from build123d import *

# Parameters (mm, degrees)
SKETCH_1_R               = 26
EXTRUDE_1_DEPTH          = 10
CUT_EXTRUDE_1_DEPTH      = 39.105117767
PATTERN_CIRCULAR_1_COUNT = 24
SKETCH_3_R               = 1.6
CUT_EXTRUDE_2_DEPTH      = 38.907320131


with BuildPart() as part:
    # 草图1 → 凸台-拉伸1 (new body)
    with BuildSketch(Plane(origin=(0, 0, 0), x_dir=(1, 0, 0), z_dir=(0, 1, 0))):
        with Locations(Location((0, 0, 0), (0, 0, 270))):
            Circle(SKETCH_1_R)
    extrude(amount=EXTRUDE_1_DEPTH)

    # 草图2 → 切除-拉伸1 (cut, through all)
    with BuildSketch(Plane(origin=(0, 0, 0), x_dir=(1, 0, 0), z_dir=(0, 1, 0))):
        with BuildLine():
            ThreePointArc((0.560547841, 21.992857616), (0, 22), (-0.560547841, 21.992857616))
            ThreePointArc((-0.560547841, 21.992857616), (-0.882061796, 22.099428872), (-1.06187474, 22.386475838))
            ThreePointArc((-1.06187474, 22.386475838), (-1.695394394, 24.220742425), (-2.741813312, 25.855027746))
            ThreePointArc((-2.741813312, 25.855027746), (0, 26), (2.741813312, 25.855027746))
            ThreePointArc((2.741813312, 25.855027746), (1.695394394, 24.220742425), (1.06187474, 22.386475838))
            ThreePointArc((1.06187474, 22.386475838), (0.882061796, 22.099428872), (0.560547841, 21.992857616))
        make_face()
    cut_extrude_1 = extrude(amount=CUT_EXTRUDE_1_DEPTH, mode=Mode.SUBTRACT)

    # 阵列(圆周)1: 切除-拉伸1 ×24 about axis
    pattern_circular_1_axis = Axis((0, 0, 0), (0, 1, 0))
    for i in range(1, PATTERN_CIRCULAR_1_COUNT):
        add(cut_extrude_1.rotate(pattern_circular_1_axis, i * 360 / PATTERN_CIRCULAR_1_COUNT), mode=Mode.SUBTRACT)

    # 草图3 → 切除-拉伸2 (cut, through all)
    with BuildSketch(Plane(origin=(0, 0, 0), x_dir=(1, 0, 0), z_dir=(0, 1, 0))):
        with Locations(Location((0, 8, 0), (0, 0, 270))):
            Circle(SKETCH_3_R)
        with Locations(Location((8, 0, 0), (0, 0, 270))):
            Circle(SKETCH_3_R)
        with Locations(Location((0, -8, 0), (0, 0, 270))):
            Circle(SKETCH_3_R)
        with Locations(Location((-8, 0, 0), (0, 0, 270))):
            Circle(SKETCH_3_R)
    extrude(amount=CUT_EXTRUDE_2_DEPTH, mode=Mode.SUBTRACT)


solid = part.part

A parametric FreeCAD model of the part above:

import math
import FreeCAD as App
import Part
import Sketcher
from FreeCAD import Vector
Q = App.Units.Quantity

doc = App.newDocument("Part")
body = doc.addObject("PartDesign::Body", "Body")

# Sketch on XZ plane
sketch1 = doc.addObject("Sketcher::SketchObject", "Sketch")
body.addObject(sketch1)
sketch1.AttachmentSupport = (doc.XZ_Plane, [""])
sketch1.MapMode = "FlatFace"
sketch1.addGeometry(Part.Circle(Vector(0, 0, 0), Vector(0, 0, 1), 26), False)
sketch1.addConstraint([
    Sketcher.Constraint("Coincident", 0, 3, -1, 1),
    Sketcher.Constraint("Diameter", 0, Q("52 mm")),
])
pad1 = doc.addObject("PartDesign::Pad", "Pad")
body.addObject(pad1)
pad1.Profile = sketch1
pad1.Length = 10
pad1.Reversed = True

# Sketch on XZ plane
sketch2 = doc.addObject("Sketcher::SketchObject", "Sketch001")
body.addObject(sketch2)
sketch2.AttachmentSupport = (doc.XZ_Plane, [""])
sketch2.MapMode = "FlatFace"
sketch2.addGeometry([
    Part.ArcOfCircle(Part.Circle(Vector(0, 0, 0), Vector(0, 0, 1), 22), math.radians(-91.460023), math.radians(-88.539977)),  # 0
    Part.ArcOfCircle(Part.Circle(Vector(0.573288, -22.492695, 0), Vector(0, 0, 1), 0.5), math.radians(12.265316), math.radians(91.460023)),  # 1
    Part.ArcOfCircle(Part.Circle(Vector(9.082994, -20.642675, 0), Vector(0, 0, 1), 8.208483), math.radians(-167.734683), math.radians(-140.580321)),  # 2
    Part.ArcOfCircle(Part.Circle(Vector(0, 0, 0), Vector(0, 0, 1), 26), math.radians(-96.053345), math.radians(-83.946655)),  # 3
    Part.ArcOfCircle(Part.Circle(Vector(-9.082994, -20.642675, 0), Vector(0, 0, 1), 8.208483), math.radians(-39.419679), math.radians(-12.265317)),  # 4
    Part.ArcOfCircle(Part.Circle(Vector(-0.573288, -22.492695, 0), Vector(0, 0, 1), 0.5), math.radians(88.539977), math.radians(167.734684)),  # 5
], False)
sketch2.addConstraint([
    Sketcher.Constraint("Tangent", 0, 2, 1, 2),
    Sketcher.Constraint("Tangent", 1, 1, 2, 1),
    Sketcher.Constraint("Coincident", 2, 2, 3, 2),
    Sketcher.Constraint("Coincident", 3, 1, 4, 1),
    Sketcher.Constraint("Tangent", 4, 2, 5, 2),
    Sketcher.Constraint("Tangent", 5, 1, 0, 1),
    Sketcher.Constraint("Coincident", 0, 3, -1, 1),
    Sketcher.Constraint("Coincident", 3, 3, -1, 1),
    Sketcher.Constraint("Equal", 2, 4),
    Sketcher.Constraint("Equal", 1, 5),
    Sketcher.Constraint("Symmetric", 2, 3, 4, 3, -2),
    Sketcher.Constraint("Radius", 0, Q("22 mm")),
    Sketcher.Constraint("Radius", 3, Q("26 mm")),
    Sketcher.Constraint("Radius", 1, Q("0.5 mm")),
    Sketcher.Constraint("Radius", 2, Q("8.208483 mm")),
    Sketcher.Constraint("DistanceY", 1, 1, 2, 3, Q("1.743801 mm")),
    Sketcher.Constraint("DistanceX", 5, 3, 2, 2, Q("3.315101 mm")),
])
pocket1 = doc.addObject("PartDesign::Pocket", "Pocket")
body.addObject(pocket1)
pocket1.Profile = sketch2
pocket1.Type = "ThroughAll"
doc.recompute()

polarpattern = doc.addObject("PartDesign::PolarPattern", "PolarPattern")
body.addObject(polarpattern)
polarpattern.Originals = [pocket1]
polarpattern.Axis = (doc.Y_Axis, [""])
polarpattern.Angle = 360
polarpattern.Occurrences = 24
body.Tip = polarpattern

# Sketch on XZ plane
sketch3 = doc.addObject("Sketcher::SketchObject", "Sketch002")
body.addObject(sketch3)
sketch3.AttachmentSupport = (doc.XZ_Plane, [""])
sketch3.MapMode = "FlatFace"
sketch3.addGeometry([
    Part.Circle(Vector(0, -8, 0), Vector(0, 0, 1), 1.6),
    Part.Circle(Vector(8, 0, 0), Vector(0, 0, 1), 1.6),
    Part.Circle(Vector(0, 8, 0), Vector(0, 0, 1), 1.6),
    Part.Circle(Vector(-8, 0, 0), Vector(0, 0, 1), 1.6),
], False)
sketch3.addConstraint([
    Sketcher.Constraint("Equal", 0, 1),
    Sketcher.Constraint("Equal", 1, 2),
    Sketcher.Constraint("Equal", 2, 3),
    Sketcher.Constraint("Symmetric", 0, 3, 2, 3, -1, 1),
    Sketcher.Constraint("Symmetric", 1, 3, 3, 3, -1, 1),
    Sketcher.Constraint("PointOnObject", 0, 3, -2),
    Sketcher.Constraint("PointOnObject", 1, 3, -1),
    Sketcher.Constraint("Diameter", 0, Q("3.2 mm")),
    Sketcher.Constraint("DistanceY", 0, 3, -1, 1, Q("8 mm")),
    Sketcher.Constraint("DistanceX", -1, 1, 1, 3, Q("8 mm")),
])
pocket2 = doc.addObject("PartDesign::Pocket", "Pocket001")
body.addObject(pocket2)
pocket2.Profile = sketch3
pocket2.Type = "ThroughAll"

doc.recompute()
